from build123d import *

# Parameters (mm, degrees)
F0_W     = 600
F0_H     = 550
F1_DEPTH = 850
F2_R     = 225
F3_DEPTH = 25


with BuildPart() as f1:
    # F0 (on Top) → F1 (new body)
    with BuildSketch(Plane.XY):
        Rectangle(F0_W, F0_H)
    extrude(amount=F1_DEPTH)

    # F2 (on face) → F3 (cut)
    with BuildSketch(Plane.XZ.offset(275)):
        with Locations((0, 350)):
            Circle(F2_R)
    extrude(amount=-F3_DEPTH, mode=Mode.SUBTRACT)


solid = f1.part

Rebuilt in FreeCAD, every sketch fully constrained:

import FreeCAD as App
import Part
import Sketcher


def add_polygon(sketch, points):
    """Adds a closed chain of lines whose ends are joined by coincident constraints."""
    first, n = sketch.GeometryCount, len(points)
    for a, b in zip(points, points[1:] + points[:1]):
        sketch.addGeometry(Part.LineSegment(App.Vector(*a, 0), App.Vector(*b, 0)), False)
    for i in range(n):
        sketch.addConstraint(Sketcher.Constraint("Coincident", first + i, 2, first + (i + 1) % n, 1))

doc = App.newDocument("Part")
params = doc.addObject("Spreadsheet::Sheet", "Params")
for row, (alias, value) in enumerate([
    ("sketch1_width", "600 mm"),
    ("sketch1_height", "550 mm"),
    ("pad1_length", "850 mm"),
    ("sketch2_diameter", "450 mm"),
    ("pocket1_length", "25 mm"),
], start=1):
    params.set(f"A{row}", alias)
    params.set(f"B{row}", "=" + value)
    params.setAlias(f"B{row}", alias)

body = doc.addObject("PartDesign::Body", "Body")

sketch1 = body.newObject("Sketcher::SketchObject", "Sketch")
sketch1.AttachmentSupport = (doc.getObject("XY_Plane"), [""])
sketch1.MapMode = "FlatFace"
add_polygon(sketch1, [(-300, 275), (-300, -275), (300, -275), (300, 275)])
sketch1.addConstraint([
    Sketcher.Constraint("Vertical", 0),
    Sketcher.Constraint("Horizontal", 1),
    Sketcher.Constraint("Vertical", 2),
    Sketcher.Constraint("Horizontal", 3),
    Sketcher.Constraint("Symmetric", 0, 2, 2, 2, -1, 1),
    Sketcher.Constraint("DistanceX", 1, 1, 1, 2, 600.0),
    Sketcher.Constraint("DistanceY", 0, 2, 0, 1, 550.0),
])
sketch1.setExpression("Constraints[9]", "Params.sketch1_width")
sketch1.setExpression("Constraints[10]", "Params.sketch1_height")
pad1 = body.newObject("PartDesign::Pad", "Pad")
pad1.Profile = sketch1
pad1.setExpression("Length", "Params.pad1_length")

sketch2 = body.newObject("Sketcher::SketchObject", "Sketch001")
sketch2.AttachmentSupport = (doc.getObject("XZ_Plane"), [""])
sketch2.MapMode = "FlatFace"
sketch2.AttachmentOffset = App.Placement(App.Vector(0, 0, 275), App.Rotation())
sketch2.addGeometry(Part.Circle(App.Vector(0, 350, 0), App.Vector(0, 0, 1), 225), False)
sketch2.addConstraint([
    Sketcher.Constraint("PointOnObject", 0, 3, -2),
    Sketcher.Constraint("Diameter", 0, 450.0),
    Sketcher.Constraint("DistanceY", -1, 1, 0, 3, 350.0),
])
sketch2.setExpression("Constraints[1]", "Params.sketch2_diameter")
pocket1 = body.newObject("PartDesign::Pocket", "Pocket")
pocket1.Profile = sketch2
pocket1.setExpression("Length", "Params.pocket1_length")

doc.recompute()
